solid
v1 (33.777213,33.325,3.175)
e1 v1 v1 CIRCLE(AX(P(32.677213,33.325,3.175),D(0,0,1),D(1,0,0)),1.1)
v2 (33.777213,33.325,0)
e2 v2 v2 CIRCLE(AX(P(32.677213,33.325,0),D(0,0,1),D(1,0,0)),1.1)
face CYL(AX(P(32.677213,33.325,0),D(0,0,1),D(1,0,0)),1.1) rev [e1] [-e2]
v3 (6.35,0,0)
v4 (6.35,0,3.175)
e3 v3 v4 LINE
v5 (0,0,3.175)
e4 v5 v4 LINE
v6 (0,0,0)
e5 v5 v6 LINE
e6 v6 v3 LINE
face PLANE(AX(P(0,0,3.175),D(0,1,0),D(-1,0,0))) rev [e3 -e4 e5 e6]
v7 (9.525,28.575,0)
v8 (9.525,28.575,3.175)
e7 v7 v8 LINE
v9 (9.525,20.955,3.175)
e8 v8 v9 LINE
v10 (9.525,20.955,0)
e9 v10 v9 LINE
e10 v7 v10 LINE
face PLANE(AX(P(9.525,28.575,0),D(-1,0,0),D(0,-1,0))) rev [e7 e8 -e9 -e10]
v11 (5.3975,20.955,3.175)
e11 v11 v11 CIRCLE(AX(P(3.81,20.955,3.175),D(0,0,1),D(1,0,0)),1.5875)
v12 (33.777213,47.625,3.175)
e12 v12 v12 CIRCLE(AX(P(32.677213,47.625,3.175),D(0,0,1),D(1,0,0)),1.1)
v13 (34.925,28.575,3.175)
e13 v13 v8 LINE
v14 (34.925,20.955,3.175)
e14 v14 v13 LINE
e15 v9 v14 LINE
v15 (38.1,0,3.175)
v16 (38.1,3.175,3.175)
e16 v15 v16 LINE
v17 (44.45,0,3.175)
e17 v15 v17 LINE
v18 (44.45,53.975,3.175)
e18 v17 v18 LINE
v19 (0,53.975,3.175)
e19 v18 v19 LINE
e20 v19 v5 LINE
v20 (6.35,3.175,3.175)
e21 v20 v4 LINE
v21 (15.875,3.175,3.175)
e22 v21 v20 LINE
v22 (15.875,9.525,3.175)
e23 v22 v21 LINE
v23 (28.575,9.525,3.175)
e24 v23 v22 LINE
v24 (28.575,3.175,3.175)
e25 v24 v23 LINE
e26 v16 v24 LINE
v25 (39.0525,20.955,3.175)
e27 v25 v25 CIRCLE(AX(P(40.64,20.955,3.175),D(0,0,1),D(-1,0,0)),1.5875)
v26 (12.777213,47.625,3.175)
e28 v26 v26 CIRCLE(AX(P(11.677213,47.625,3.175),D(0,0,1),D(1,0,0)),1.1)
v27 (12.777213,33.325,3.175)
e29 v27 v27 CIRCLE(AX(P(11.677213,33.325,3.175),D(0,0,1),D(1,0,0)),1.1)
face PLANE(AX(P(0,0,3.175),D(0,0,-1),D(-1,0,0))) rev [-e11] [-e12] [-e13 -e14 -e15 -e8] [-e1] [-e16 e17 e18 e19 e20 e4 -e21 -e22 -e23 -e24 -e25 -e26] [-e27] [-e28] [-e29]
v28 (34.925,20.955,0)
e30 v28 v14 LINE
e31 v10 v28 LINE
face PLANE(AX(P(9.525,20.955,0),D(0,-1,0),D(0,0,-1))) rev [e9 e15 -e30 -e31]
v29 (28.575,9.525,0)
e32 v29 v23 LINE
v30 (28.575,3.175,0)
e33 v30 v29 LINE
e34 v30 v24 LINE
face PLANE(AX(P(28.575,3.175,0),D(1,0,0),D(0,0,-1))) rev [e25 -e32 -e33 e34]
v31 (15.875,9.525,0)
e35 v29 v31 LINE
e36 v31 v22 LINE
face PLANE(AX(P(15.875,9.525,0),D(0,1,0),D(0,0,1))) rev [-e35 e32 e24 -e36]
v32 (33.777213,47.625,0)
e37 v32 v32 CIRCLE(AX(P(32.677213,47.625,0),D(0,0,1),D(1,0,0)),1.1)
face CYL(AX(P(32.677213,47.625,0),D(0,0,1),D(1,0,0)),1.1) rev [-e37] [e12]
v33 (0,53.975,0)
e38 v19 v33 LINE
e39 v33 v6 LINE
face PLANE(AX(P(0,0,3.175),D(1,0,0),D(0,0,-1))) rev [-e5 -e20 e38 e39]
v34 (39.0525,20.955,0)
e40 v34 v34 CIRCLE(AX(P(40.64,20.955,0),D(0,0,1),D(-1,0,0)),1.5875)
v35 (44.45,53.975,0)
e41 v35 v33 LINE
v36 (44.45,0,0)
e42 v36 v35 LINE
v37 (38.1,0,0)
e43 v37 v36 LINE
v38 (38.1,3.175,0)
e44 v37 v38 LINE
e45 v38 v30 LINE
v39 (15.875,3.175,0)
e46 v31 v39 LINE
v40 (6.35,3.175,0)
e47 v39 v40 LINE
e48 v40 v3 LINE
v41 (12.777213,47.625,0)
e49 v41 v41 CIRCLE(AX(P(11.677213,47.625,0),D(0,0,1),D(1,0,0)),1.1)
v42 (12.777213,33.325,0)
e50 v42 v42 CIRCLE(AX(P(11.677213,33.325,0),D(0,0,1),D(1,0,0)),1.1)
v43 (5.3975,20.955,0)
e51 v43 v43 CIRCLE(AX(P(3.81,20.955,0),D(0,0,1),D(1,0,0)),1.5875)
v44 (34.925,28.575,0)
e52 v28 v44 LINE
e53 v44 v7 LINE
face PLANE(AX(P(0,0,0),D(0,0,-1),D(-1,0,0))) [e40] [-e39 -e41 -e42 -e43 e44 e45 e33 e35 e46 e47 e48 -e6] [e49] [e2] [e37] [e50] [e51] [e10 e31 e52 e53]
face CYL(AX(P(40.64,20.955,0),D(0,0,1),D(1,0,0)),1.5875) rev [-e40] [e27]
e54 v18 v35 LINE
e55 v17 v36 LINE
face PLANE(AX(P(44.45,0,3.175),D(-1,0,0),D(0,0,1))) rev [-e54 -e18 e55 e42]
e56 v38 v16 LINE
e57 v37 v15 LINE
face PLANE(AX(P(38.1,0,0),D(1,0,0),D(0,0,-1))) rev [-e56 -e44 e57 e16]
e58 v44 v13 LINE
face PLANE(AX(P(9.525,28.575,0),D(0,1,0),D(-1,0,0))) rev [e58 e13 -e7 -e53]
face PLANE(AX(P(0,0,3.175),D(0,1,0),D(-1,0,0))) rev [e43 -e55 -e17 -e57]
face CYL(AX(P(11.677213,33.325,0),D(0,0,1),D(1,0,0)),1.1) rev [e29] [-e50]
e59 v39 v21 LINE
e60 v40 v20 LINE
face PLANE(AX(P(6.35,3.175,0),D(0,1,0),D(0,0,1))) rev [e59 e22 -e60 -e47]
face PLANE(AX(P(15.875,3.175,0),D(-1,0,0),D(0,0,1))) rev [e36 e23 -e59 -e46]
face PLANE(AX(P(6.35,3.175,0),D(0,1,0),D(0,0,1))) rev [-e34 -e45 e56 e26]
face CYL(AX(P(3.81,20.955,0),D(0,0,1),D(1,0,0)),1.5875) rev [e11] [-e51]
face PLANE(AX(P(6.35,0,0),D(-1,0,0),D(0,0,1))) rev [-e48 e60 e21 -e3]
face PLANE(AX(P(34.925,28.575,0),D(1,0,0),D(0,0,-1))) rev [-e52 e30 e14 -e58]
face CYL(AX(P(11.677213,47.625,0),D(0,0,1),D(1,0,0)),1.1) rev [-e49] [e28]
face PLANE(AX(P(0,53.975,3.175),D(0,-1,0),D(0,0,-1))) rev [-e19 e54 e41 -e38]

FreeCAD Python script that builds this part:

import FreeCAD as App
import Part
import Sketcher

V = App.Vector
Q = App.Units.Quantity

doc = App.newDocument("Part")
body = doc.addObject("PartDesign::Body", "Body")

sketch1 = doc.addObject("Sketcher::SketchObject", "Sketch")
body.addObject(sketch1)
sketch1.AttachmentSupport = (doc.XY_Plane, [""])
sketch1.MapMode = "FlatFace"
sketch1.addGeometry(Part.LineSegment(V(0, 53.975, 0), V(0, 0, 0)), False)
sketch1.addGeometry(Part.LineSegment(V(0, 0, 0), V(44.45, 0, 0)), False)
sketch1.addGeometry(Part.LineSegment(V(44.45, 0, 0), V(44.45, 53.975, 0)), False)
sketch1.addGeometry(Part.LineSegment(V(44.45, 53.975, 0), V(0, 53.975, 0)), False)
sketch1.addConstraint(Sketcher.Constraint("Coincident", 0, 2, 1, 1))
sketch1.addConstraint(Sketcher.Constraint("Coincident", 1, 2, 2, 1))
sketch1.addConstraint(Sketcher.Constraint("Coincident", 2, 2, 3, 1))
sketch1.addConstraint(Sketcher.Constraint("Coincident", 3, 2, 0, 1))
sketch1.addConstraint(Sketcher.Constraint("Vertical", 0))
sketch1.addConstraint(Sketcher.Constraint("Horizontal", 1))
sketch1.addConstraint(Sketcher.Constraint("Vertical", 2))
sketch1.addConstraint(Sketcher.Constraint("Horizontal", 3))
sketch1.addConstraint(Sketcher.Constraint("Coincident", 0, 2, -1, 1))
sketch1.addConstraint(Sketcher.Constraint("DistanceX", 1, 1, 1, 2, Q("1.75 in")))
sketch1.addConstraint(Sketcher.Constraint("DistanceY", 0, 2, 0, 1, Q("2.125 in")))
pad1 = doc.addObject("PartDesign::Pad", "Pad")
body.addObject(pad1)
pad1.Profile = sketch1
pad1.Length = Q("0.125 in")

sketch2 = doc.addObject("Sketcher::SketchObject", "Sketch001")
body.addObject(sketch2)
sketch2.AttachmentSupport = (doc.XY_Plane, [""])
sketch2.MapMode = "FlatFace"
sketch2.AttachmentOffset = App.Placement(V(0, 0, 0.125 * 25.4), App.Rotation())
sketch2.addGeometry(Part.LineSegment(V(6.35, 3.175, 0), V(6.35, 0, 0)), False)
sketch2.addGeometry(Part.LineSegment(V(6.35, 0, 0), V(38.1, 0, 0)), False)
sketch2.addGeometry(Part.LineSegment(V(38.1, 0, 0), V(38.1, 3.175, 0)), False)
sketch2.addGeometry(Part.LineSegment(V(38.1, 3.175, 0), V(6.35, 3.175, 0)), False)
sketch2.addConstraint(Sketcher.Constraint("Coincident", 0, 2, 1, 1))
sketch2.addConstraint(Sketcher.Constraint("Coincident", 1, 2, 2, 1))
sketch2.addConstraint(Sketcher.Constraint("Coincident", 2, 2, 3, 1))
sketch2.addConstraint(Sketcher.Constraint("Coincident", 3, 2, 0, 1))
sketch2.addConstraint(Sketcher.Constraint("Vertical", 0))
sketch2.addConstraint(Sketcher.Constraint("Horizontal", 1))
sketch2.addConstraint(Sketcher.Constraint("Vertical", 2))
sketch2.addConstraint(Sketcher.Constraint("Horizontal", 3))
sketch2.addConstraint(Sketcher.Constraint("PointOnObject", 0, 2, -1))
sketch2.addConstraint(Sketcher.Constraint("DistanceX", 1, 1, 1, 2, Q("1.25 in")))
sketch2.addConstraint(Sketcher.Constraint("DistanceX", -1, 1, 1, 2, Q("1.5 in")))
sketch2.addConstraint(Sketcher.Constraint("DistanceY", 0, 2, 0, 1, Q("0.125 in")))
pocket1 = doc.addObject("PartDesign::Pocket", "Pocket")
body.addObject(pocket1)
pocket1.Profile = sketch2
pocket1.Type = "ThroughAll"

sketch3 = doc.addObject("Sketcher::SketchObject", "Sketch002")
body.addObject(sketch3)
sketch3.AttachmentSupport = (doc.XY_Plane, [""])
sketch3.MapMode = "FlatFace"
sketch3.AttachmentOffset = App.Placement(V(0, 0, 0.125 * 25.4), App.Rotation())
sketch3.addGeometry(Part.Circle(V(3.81, 20.955, 0), V(0, 0, 1), 1.5875), False)
sketch3.addGeometry(Part.Circle(V(40.64, 20.955, 0), V(0, 0, 1), 1.5875), False)
sketch3.addGeometry(Part.Circle(V(11.677213, 47.625, 0), V(0, 0, 1), 1.1), False)
sketch3.addGeometry(Part.Circle(V(11.677213, 33.325, 0), V(0, 0, 1), 1.1), False)
sketch3.addGeometry(Part.Circle(V(32.677213, 47.625, 0), V(0, 0, 1), 1.1), False)
sketch3.addGeometry(Part.Circle(V(32.677213, 33.325, 0), V(0, 0, 1), 1.1), False)
sketch3.addGeometry(Part.LineSegment(V(15.875, 9.525, 0), V(15.875, 3.175, 0)), False)
sketch3.addGeometry(Part.LineSegment(V(15.875, 3.175, 0), V(28.575, 3.175, 0)), False)
sketch3.addGeometry(Part.LineSegment(V(28.575, 3.175, 0), V(28.575, 9.525, 0)), False)
sketch3.addGeometry(Part.LineSegment(V(28.575, 9.525, 0), V(15.875, 9.525, 0)), False)
sketch3.addGeometry(Part.LineSegment(V(9.525, 28.575, 0), V(9.525, 20.955, 0)), False)
sketch3.addGeometry(Part.LineSegment(V(9.525, 20.955, 0), V(34.925, 20.955, 0)), False)
sketch3.addGeometry(Part.LineSegment(V(34.925, 20.955, 0), V(34.925, 28.575, 0)), False)
sketch3.addGeometry(Part.LineSegment(V(34.925, 28.575, 0), V(9.525, 28.575, 0)), False)
sketch3.addConstraint(Sketcher.Constraint("Coincident", 6, 2, 7, 1))
sketch3.addConstraint(Sketcher.Constraint("Coincident", 7, 2, 8, 1))
sketch3.addConstraint(Sketcher.Constraint("Coincident", 8, 2, 9, 1))
sketch3.addConstraint(Sketcher.Constraint("Coincident", 9, 2, 6, 1))
sketch3.addConstraint(Sketcher.Constraint("Coincident", 10, 2, 11, 1))
sketch3.addConstraint(Sketcher.Constraint("Coincident", 11, 2, 12, 1))
sketch3.addConstraint(Sketcher.Constraint("Coincident", 12, 2, 13, 1))
sketch3.addConstraint(Sketcher.Constraint("Coincident", 13, 2, 10, 1))
sketch3.addConstraint(Sketcher.Constraint("Vertical", 6))
sketch3.addConstraint(Sketcher.Constraint("Horizontal", 7))
sketch3.addConstraint(Sketcher.Constraint("Vertical", 8))
sketch3.addConstraint(Sketcher.Constraint("Horizontal", 9))
sketch3.addConstraint(Sketcher.Constraint("Vertical", 10))
sketch3.addConstraint(Sketcher.Constraint("Horizontal", 11))
sketch3.addConstraint(Sketcher.Constraint("Vertical", 12))
sketch3.addConstraint(Sketcher.Constraint("Horizontal", 13))
sketch3.addConstraint(Sketcher.Constraint("Equal", 0, 1))
sketch3.addConstraint(Sketcher.Constraint("Equal", 2, 3))
sketch3.addConstraint(Sketcher.Constraint("Equal", 3, 4))
sketch3.addConstraint(Sketcher.Constraint("Equal", 4, 5))
sketch3.addConstraint(Sketcher.Constraint("Horizontal", 0, 3, 1, 3))
sketch3.addConstraint(Sketcher.Constraint("Horizontal", 2, 3, 4, 3))
sketch3.addConstraint(Sketcher.Constraint("Horizontal", 3, 3, 5, 3))
sketch3.addConstraint(Sketcher.Constraint("Horizontal", 1, 3, 10, 2))
sketch3.addConstraint(Sketcher.Constraint("Vertical", 2, 3, 3, 3))
sketch3.addConstraint(Sketcher.Constraint("Vertical", 4, 3, 5, 3))
sketch3.addConstraint(Sketcher.Constraint("DistanceX", 11, 1, 11, 2, Q("1 in")))
sketch3.addConstraint(Sketcher.Constraint("Diameter", 0, Q("0.125 in")))
sketch3.addConstraint(Sketcher.Constraint("DistanceX", 7, 1, 7, 2, Q("0.5 in")))
sketch3.addConstraint(Sketcher.Constraint("DistanceY", 10, 2, 10, 1, Q("0.3 in")))
sketch3.addConstraint(Sketcher.Constraint("DistanceY", 6, 2, 6, 1, Q("0.25 in")))
sketch3.addConstraint(Sketcher.Constraint("DistanceX", -1, 1, 1, 3, Q("1.6 in")))
sketch3.addConstraint(Sketcher.Constraint("DistanceY", 6, 2, 0, 3, Q("0.7 in")))
sketch3.addConstraint(Sketcher.Constraint("Diameter", 2, Q("2.2 mm")))
sketch3.addConstraint(Sketcher.Constraint("DistanceX", -1, 1, 0, 3, Q("0.15 in")))
sketch3.addConstraint(Sketcher.Constraint("DistanceY", 0, 3, 2, 3, Q("1.05 in")))
sketch3.addConstraint(Sketcher.Constraint("DistanceX", 10, 2, 9, 2, Q("0.25 in")))
sketch3.addConstraint(Sketcher.Constraint("DistanceY", -1, 1, 0, 3, Q("0.825 in")))
sketch3.addConstraint(Sketcher.Constraint("DistanceX", -1, 1, 6, 2, Q("0.625 in")))
sketch3.addConstraint(Sketcher.Constraint("DistanceY", -1, 1, 3, 3, Q("33.325 mm")))
sketch3.addConstraint(Sketcher.Constraint("DistanceX", 2, 3, 4, 3, Q("21 mm")))
sketch3.addConstraint(Sketcher.Constraint("DistanceX", -1, 1, 2, 3, Q("11.677213 mm")))
pocket2 = doc.addObject("PartDesign::Pocket", "Pocket001")
body.addObject(pocket2)
pocket2.Profile = sketch3
pocket2.Type = "ThroughAll"

doc.recompute()
